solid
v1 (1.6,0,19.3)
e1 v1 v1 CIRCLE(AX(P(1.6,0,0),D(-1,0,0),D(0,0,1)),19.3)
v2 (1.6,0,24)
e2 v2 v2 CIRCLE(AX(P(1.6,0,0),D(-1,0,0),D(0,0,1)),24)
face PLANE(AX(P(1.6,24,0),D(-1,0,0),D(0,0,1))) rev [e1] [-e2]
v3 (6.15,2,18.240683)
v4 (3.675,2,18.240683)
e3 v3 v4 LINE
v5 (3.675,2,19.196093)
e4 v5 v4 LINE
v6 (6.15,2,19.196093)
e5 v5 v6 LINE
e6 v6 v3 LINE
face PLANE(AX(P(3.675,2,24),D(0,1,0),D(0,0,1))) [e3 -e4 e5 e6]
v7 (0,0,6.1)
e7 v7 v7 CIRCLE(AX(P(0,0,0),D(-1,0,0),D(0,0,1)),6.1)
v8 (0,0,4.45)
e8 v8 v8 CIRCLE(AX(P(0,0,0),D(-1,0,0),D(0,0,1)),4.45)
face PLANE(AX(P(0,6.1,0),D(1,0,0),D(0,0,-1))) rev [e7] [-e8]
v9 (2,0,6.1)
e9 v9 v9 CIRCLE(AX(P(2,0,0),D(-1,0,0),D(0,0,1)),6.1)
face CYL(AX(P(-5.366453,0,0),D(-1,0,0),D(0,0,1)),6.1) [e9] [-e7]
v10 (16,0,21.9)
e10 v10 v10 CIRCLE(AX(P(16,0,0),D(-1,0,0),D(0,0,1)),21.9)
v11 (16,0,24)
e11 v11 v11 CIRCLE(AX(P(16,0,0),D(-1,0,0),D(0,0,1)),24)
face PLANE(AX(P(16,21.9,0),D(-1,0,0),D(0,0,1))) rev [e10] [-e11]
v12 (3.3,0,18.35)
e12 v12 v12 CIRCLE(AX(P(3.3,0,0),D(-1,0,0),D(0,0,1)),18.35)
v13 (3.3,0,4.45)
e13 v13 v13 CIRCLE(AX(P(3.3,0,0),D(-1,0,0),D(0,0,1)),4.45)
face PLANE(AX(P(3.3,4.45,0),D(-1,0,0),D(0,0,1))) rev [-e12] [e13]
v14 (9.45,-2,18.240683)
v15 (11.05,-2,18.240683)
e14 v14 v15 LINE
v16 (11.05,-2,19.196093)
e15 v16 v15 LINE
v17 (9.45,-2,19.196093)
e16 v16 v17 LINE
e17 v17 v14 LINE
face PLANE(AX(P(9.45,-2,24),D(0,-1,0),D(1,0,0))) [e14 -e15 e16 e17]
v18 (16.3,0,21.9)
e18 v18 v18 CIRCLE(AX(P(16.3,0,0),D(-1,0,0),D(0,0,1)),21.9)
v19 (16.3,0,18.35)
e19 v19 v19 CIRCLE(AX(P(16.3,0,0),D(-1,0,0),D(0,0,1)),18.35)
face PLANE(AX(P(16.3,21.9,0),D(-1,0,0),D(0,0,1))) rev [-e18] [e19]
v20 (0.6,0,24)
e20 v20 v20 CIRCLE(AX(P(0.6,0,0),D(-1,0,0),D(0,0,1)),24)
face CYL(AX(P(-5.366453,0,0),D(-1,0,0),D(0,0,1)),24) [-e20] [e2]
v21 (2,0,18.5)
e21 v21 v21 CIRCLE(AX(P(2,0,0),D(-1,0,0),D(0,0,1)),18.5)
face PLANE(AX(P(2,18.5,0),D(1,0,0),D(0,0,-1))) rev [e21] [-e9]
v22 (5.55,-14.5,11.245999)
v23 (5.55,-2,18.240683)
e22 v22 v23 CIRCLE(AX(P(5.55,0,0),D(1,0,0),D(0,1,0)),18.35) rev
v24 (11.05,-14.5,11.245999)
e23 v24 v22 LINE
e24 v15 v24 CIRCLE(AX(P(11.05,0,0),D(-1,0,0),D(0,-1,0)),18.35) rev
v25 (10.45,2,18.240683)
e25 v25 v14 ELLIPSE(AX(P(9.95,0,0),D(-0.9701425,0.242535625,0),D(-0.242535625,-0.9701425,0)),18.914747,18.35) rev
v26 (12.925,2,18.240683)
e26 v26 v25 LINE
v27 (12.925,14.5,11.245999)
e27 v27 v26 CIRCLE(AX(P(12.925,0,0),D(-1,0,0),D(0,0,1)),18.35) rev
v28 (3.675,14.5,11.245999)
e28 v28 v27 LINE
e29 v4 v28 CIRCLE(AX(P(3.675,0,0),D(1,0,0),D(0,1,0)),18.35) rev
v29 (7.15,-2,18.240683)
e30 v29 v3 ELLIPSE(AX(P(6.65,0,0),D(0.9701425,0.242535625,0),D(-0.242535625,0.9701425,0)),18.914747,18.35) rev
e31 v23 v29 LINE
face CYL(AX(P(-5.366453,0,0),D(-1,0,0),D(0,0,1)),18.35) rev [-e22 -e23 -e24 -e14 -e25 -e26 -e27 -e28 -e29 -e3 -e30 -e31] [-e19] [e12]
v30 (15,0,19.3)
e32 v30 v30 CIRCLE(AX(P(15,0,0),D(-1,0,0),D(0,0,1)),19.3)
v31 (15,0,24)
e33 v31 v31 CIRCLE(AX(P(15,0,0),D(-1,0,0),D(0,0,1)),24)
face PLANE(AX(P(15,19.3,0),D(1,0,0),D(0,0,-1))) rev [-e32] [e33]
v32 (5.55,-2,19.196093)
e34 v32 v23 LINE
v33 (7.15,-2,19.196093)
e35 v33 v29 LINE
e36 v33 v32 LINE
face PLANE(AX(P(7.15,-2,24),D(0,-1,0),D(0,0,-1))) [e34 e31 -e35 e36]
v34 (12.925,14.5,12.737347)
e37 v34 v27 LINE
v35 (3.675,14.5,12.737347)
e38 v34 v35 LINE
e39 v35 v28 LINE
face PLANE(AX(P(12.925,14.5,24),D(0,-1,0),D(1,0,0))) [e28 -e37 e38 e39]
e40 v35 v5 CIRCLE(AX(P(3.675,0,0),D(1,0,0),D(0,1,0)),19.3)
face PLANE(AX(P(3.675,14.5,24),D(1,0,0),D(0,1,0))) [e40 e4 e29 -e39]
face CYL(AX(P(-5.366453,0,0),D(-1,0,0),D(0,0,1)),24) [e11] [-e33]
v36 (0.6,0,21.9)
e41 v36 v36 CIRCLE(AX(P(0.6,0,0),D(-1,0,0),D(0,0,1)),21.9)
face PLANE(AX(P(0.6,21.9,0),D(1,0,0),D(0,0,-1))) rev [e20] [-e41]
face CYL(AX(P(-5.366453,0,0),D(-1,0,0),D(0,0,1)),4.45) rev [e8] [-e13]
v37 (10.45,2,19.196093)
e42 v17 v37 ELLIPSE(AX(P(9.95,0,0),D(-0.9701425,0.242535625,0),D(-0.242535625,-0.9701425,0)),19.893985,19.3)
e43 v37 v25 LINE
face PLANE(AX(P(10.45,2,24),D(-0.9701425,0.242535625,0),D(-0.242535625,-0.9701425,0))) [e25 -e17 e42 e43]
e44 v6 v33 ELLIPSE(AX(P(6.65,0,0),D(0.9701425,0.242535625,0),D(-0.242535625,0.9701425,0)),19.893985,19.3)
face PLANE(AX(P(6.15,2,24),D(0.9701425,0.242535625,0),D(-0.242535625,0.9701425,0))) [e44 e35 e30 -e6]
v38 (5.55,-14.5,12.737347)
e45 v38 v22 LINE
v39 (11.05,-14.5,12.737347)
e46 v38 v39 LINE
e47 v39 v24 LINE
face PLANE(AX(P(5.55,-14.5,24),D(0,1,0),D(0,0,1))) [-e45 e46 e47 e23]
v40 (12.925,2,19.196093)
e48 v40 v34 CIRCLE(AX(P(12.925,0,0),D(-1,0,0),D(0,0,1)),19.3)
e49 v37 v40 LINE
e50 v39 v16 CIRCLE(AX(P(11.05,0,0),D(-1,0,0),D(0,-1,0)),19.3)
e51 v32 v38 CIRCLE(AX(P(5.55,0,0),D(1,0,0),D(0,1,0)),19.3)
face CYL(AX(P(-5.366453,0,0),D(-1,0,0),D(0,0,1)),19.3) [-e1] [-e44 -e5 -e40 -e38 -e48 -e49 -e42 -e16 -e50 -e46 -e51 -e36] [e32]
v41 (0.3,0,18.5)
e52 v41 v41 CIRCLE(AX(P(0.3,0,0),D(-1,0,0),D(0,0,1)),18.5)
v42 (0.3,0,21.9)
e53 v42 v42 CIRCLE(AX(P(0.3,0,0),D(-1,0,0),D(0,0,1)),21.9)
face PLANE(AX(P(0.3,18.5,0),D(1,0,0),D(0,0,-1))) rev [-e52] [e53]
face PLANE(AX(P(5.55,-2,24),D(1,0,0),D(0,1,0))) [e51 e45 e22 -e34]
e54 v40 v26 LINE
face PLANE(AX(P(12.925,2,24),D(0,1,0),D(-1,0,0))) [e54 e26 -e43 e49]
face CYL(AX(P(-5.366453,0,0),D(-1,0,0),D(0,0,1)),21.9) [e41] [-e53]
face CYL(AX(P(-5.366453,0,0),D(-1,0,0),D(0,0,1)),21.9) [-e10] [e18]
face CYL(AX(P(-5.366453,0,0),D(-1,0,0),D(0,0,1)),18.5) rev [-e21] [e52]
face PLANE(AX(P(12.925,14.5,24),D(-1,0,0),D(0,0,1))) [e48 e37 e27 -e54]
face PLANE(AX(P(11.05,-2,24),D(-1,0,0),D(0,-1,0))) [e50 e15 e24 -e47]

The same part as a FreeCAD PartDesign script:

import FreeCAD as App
import Part
import Sketcher

V = App.Vector
Q = App.Units.Quantity

doc = App.newDocument("Part")
body = doc.addObject("PartDesign::Body", "Body")

# Sketch on XY plane
sketch1 = body.newObject("Sketcher::SketchObject", "Sketch")
sketch1.AttachmentSupport = (doc.getObject("XY_Plane"), [""])
sketch1.MapMode = "FlatFace"
sketch1.addGeometry(Part.LineSegment(V(0.3, 21.9, 0), V(0.3, 18.5, 0)), False)
sketch1.addGeometry(Part.LineSegment(V(0.3, 18.5, 0), V(2, 18.5, 0)), False)
sketch1.addGeometry(Part.LineSegment(V(2, 18.5, 0), V(2, 6.1, 0)), False)
sketch1.addGeometry(Part.LineSegment(V(2, 6.1, 0), V(0, 6.1, 0)), False)
sketch1.addGeometry(Part.LineSegment(V(0, 6.1, 0), V(0, 4.45, 0)), False)
sketch1.addGeometry(Part.LineSegment(V(0, 4.45, 0), V(3.3, 4.45, 0)), False)
sketch1.addGeometry(Part.LineSegment(V(3.3, 4.45, 0), V(3.3, 18.35, 0)), False)
sketch1.addGeometry(Part.LineSegment(V(3.3, 18.35, 0), V(16.3, 18.35, 0)), False)
sketch1.addGeometry(Part.LineSegment(V(16.3, 18.35, 0), V(16.3, 21.9, 0)), False)
sketch1.addGeometry(Part.LineSegment(V(16.3, 21.9, 0), V(16, 21.9, 0)), False)
sketch1.addGeometry(Part.LineSegment(V(16, 21.9, 0), V(16, 24, 0)), False)
sketch1.addGeometry(Part.LineSegment(V(16, 24, 0), V(15, 24, 0)), False)
sketch1.addGeometry(Part.LineSegment(V(15, 24, 0), V(15, 19.3, 0)), False)
sketch1.addGeometry(Part.LineSegment(V(15, 19.3, 0), V(1.6, 19.3, 0)), False)
sketch1.addGeometry(Part.LineSegment(V(1.6, 19.3, 0), V(1.6, 24, 0)), False)
sketch1.addGeometry(Part.LineSegment(V(1.6, 24, 0), V(0.6, 24, 0)), False)
sketch1.addGeometry(Part.LineSegment(V(0.6, 24, 0), V(0.6, 21.9, 0)), False)
sketch1.addGeometry(Part.LineSegment(V(0.6, 21.9, 0), V(0.3, 21.9, 0)), False)
sketch1.addConstraint(Sketcher.Constraint("Coincident", 0, 2, 1, 1))
sketch1.addConstraint(Sketcher.Constraint("Coincident", 1, 2, 2, 1))
sketch1.addConstraint(Sketcher.Constraint("Coincident", 2, 2, 3, 1))
sketch1.addConstraint(Sketcher.Constraint("Coincident", 3, 2, 4, 1))
sketch1.addConstraint(Sketcher.Constraint("Coincident", 4, 2, 5, 1))
sketch1.addConstraint(Sketcher.Constraint("Coincident", 5, 2, 6, 1))
sketch1.addConstraint(Sketcher.Constraint("Coincident", 6, 2, 7, 1))
sketch1.addConstraint(Sketcher.Constraint("Coincident", 7, 2, 8, 1))
sketch1.addConstraint(Sketcher.Constraint("Coincident", 8, 2, 9, 1))
sketch1.addConstraint(Sketcher.Constraint("Coincident", 9, 2, 10, 1))
sketch1.addConstraint(Sketcher.Constraint("Coincident", 10, 2, 11, 1))
sketch1.addConstraint(Sketcher.Constraint("Coincident", 11, 2, 12, 1))
sketch1.addConstraint(Sketcher.Constraint("Coincident", 12, 2, 13, 1))
sketch1.addConstraint(Sketcher.Constraint("Coincident", 13, 2, 14, 1))
sketch1.addConstraint(Sketcher.Constraint("Coincident", 14, 2, 15, 1))
sketch1.addConstraint(Sketcher.Constraint("Coincident", 15, 2, 16, 1))
sketch1.addConstraint(Sketcher.Constraint("Coincident", 16, 2, 17, 1))
sketch1.addConstraint(Sketcher.Constraint("Coincident", 17, 2, 0, 1))
sketch1.addConstraint(Sketcher.Constraint("Vertical", 0))
sketch1.addConstraint(Sketcher.Constraint("Horizontal", 1))
sketch1.addConstraint(Sketcher.Constraint("Vertical", 2))
sketch1.addConstraint(Sketcher.Constraint("Horizontal", 3))
sketch1.addConstraint(Sketcher.Constraint("Vertical", 4))
sketch1.addConstraint(Sketcher.Constraint("Horizontal", 5))
sketch1.addConstraint(Sketcher.Constraint("Vertical", 6))
sketch1.addConstraint(Sketcher.Constraint("Horizontal", 7))
sketch1.addConstraint(Sketcher.Constraint("Vertical", 8))
sketch1.addConstraint(Sketcher.Constraint("Horizontal", 9))
sketch1.addConstraint(Sketcher.Constraint("Vertical", 10))
sketch1.addConstraint(Sketcher.Constraint("Horizontal", 11))
sketch1.addConstraint(Sketcher.Constraint("Vertical", 12))
sketch1.addConstraint(Sketcher.Constraint("Horizontal", 13))
sketch1.addConstraint(Sketcher.Constraint("Vertical", 14))
sketch1.addConstraint(Sketcher.Constraint("Horizontal", 15))
sketch1.addConstraint(Sketcher.Constraint("Vertical", 16))
sketch1.addConstraint(Sketcher.Constraint("Horizontal", 17))
sketch1.addConstraint(Sketcher.Constraint("PointOnObject", 3, 2, -2))
sketch1.addConstraint(Sketcher.Constraint("Horizontal", 11, 2, 14, 2))
sketch1.addConstraint(Sketcher.Constraint("Horizontal", 9, 2, 16, 2))
sketch1.addConstraint(Sketcher.Constraint("Equal", 11, 15))
sketch1.addConstraint(Sketcher.Constraint("Equal", 9, 17))
sketch1.addConstraint(Sketcher.Constraint("DistanceX", 3, 2, 3, 1, Q("2 mm")))
sketch1.addConstraint(Sketcher.Constraint("DistanceX", 7, 1, 7, 2, Q("13 mm")))
sketch1.addConstraint(Sketcher.Constraint("DistanceX", 11, 2, 11, 1, Q("1 mm")))
sketch1.addConstraint(Sketcher.Constraint("DistanceX", 1, 1, 1, 2, Q("1.7 mm")))
sketch1.addConstraint(Sketcher.Constraint("DistanceX", 5, 1, 5, 2, Q("3.3 mm")))
sketch1.addConstraint(Sketcher.Constraint("DistanceX", 9, 2, 9, 1, Q("0.3 mm")))
sketch1.addConstraint(Sketcher.Constraint("DistanceY", 0, 2, 0, 1, Q("3.4 mm")))
sketch1.addConstraint(Sketcher.Constraint("DistanceY", 2, 2, 2, 1, Q("12.4 mm")))
sketch1.addConstraint(Sketcher.Constraint("DistanceY", 6, 1, 6, 2, Q("13.9 mm")))
sketch1.addConstraint(Sketcher.Constraint("DistanceY", 10, 1, 10, 2, Q("2.1 mm")))
sketch1.addConstraint(Sketcher.Constraint("DistanceY", 12, 2, 12, 1, Q("4.7 mm")))
sketch1.addConstraint(Sketcher.Constraint("DistanceY", -1, 1, 10, 2, Q("24 mm")))
sketch1.addConstraint(Sketcher.Constraint("DistanceY", 4, 2, 4, 1, Q("1.65 mm")))
revolution = body.newObject("PartDesign::Revolution", "Revolution")
revolution.Profile = sketch1
revolution.ReferenceAxis = (sketch1, ["H_Axis"])
revolution.Angle = 360

# Sketch on XY plane
sketch2 = body.newObject("Sketcher::SketchObject", "Sketch001")
sketch2.AttachmentSupport = (doc.getObject("XY_Plane"), [""])
sketch2.MapMode = "FlatFace"
sketch2.addGeometry(Part.LineSegment(V(12.9, 14.5, 0), V(3.7, 14.5, 0)), False)
sketch2.addGeometry(Part.LineSegment(V(3.7, 14.5, 0), V(3.7, 2, 0)), False)
sketch2.addGeometry(Part.LineSegment(V(3.7, 2, 0), V(6.2, 2, 0)), False)
sketch2.addGeometry(Part.LineSegment(V(6.2, 2, 0), V(7.2, -2, 0)), False)
sketch2.addGeometry(Part.LineSegment(V(7.2, -2, 0), V(5.5, -2, 0)), False)
sketch2.addGeometry(Part.LineSegment(V(5.5, -2, 0), V(5.5, -14.5, 0)), False)
sketch2.addGeometry(Part.LineSegment(V(5.5, -14.5, 0), V(11.1, -14.5, 0)), False)
sketch2.addGeometry(Part.LineSegment(V(11.1, -14.5, 0), V(11.1, -2, 0)), False)
sketch2.addGeometry(Part.LineSegment(V(11.1, -2, 0), V(9.4, -2, 0)), False)
sketch2.addGeometry(Part.LineSegment(V(9.4, -2, 0), V(10.4, 2, 0)), False)
sketch2.addGeometry(Part.LineSegment(V(10.4, 2, 0), V(12.9, 2, 0)), False)
sketch2.addGeometry(Part.LineSegment(V(12.9, 2, 0), V(12.9, 14.5, 0)), False)
sketch2.addConstraint(Sketcher.Constraint("Coincident", 0, 2, 1, 1))
sketch2.addConstraint(Sketcher.Constraint("Coincident", 1, 2, 2, 1))
sketch2.addConstraint(Sketcher.Constraint("Coincident", 2, 2, 3, 1))
sketch2.addConstraint(Sketcher.Constraint("Coincident", 3, 2, 4, 1))
sketch2.addConstraint(Sketcher.Constraint("Coincident", 4, 2, 5, 1))
sketch2.addConstraint(Sketcher.Constraint("Coincident", 5, 2, 6, 1))
sketch2.addConstraint(Sketcher.Constraint("Coincident", 6, 2, 7, 1))
sketch2.addConstraint(Sketcher.Constraint("Coincident", 7, 2, 8, 1))
sketch2.addConstraint(Sketcher.Constraint("Coincident", 8, 2, 9, 1))
sketch2.addConstraint(Sketcher.Constraint("Coincident", 9, 2, 10, 1))
sketch2.addConstraint(Sketcher.Constraint("Coincident", 10, 2, 11, 1))
sketch2.addConstraint(Sketcher.Constraint("Coincident", 11, 2, 0, 1))
sketch2.addConstraint(Sketcher.Constraint("Horizontal", 0))
sketch2.addConstraint(Sketcher.Constraint("Vertical", 1))
sketch2.addConstraint(Sketcher.Constraint("Horizontal", 2))
sketch2.addConstraint(Sketcher.Constraint("Horizontal", 4))
sketch2.addConstraint(Sketcher.Constraint("Vertical", 5))
sketch2.addConstraint(Sketcher.Constraint("Horizontal", 6))
sketch2.addConstraint(Sketcher.Constraint("Vertical", 7))
sketch2.addConstraint(Sketcher.Constraint("Horizontal", 8))
sketch2.addConstraint(Sketcher.Constraint("Horizontal", 10))
sketch2.addConstraint(Sketcher.Constraint("Vertical", 11))
sketch2.addConstraint(Sketcher.Constraint("Horizontal", 4, 2, 7, 2))
sketch2.addConstraint(Sketcher.Constraint("Horizontal", 2, 2, 9, 2))
sketch2.addConstraint(Sketcher.Constraint("Equal", 4, 8))
sketch2.addConstraint(Sketcher.Constraint("Equal", 2, 10))
sketch2.addConstraint(Sketcher.Constraint("Equal", 1, 5))
sketch2.addConstraint(Sketcher.Constraint("Equal", 3, 9))
sketch2.addConstraint(Sketcher.Constraint("DistanceX", 4, 2, 4, 1, Q("1.6 mm")))
sketch2.addConstraint(Sketcher.Constraint("DistanceX", 6, 1, 6, 2, Q("5.5 mm")))
sketch2.addConstraint(Sketcher.Constraint("DistanceY", 1, 2, 1, 1, Q("12.5 mm")))
sketch2.addConstraint(Sketcher.Constraint("DistanceY", -1, 1, 1, 2, Q("2 mm")))
sketch2.addConstraint(Sketcher.Constraint("DistanceY", 3, 2, -1, 1, Q("2 mm")))
sketch2.addConstraint(Sketcher.Constraint("DistanceX", 2, 2, 3, 2, Q("1 mm")))
sketch2.addConstraint(Sketcher.Constraint("DistanceX", 0, 2, 0, 1, Q("9.25 mm")))
sketch2.addConstraint(Sketcher.Constraint("DistanceX", -1, 1, 2, 2, Q("6.15 mm")))
pocket1 = body.newObject("PartDesign::Pocket", "Pocket")
pocket1.Profile = sketch2
pocket1.Type = "ThroughAll"
pocket1.Reversed = True

doc.recompute()
